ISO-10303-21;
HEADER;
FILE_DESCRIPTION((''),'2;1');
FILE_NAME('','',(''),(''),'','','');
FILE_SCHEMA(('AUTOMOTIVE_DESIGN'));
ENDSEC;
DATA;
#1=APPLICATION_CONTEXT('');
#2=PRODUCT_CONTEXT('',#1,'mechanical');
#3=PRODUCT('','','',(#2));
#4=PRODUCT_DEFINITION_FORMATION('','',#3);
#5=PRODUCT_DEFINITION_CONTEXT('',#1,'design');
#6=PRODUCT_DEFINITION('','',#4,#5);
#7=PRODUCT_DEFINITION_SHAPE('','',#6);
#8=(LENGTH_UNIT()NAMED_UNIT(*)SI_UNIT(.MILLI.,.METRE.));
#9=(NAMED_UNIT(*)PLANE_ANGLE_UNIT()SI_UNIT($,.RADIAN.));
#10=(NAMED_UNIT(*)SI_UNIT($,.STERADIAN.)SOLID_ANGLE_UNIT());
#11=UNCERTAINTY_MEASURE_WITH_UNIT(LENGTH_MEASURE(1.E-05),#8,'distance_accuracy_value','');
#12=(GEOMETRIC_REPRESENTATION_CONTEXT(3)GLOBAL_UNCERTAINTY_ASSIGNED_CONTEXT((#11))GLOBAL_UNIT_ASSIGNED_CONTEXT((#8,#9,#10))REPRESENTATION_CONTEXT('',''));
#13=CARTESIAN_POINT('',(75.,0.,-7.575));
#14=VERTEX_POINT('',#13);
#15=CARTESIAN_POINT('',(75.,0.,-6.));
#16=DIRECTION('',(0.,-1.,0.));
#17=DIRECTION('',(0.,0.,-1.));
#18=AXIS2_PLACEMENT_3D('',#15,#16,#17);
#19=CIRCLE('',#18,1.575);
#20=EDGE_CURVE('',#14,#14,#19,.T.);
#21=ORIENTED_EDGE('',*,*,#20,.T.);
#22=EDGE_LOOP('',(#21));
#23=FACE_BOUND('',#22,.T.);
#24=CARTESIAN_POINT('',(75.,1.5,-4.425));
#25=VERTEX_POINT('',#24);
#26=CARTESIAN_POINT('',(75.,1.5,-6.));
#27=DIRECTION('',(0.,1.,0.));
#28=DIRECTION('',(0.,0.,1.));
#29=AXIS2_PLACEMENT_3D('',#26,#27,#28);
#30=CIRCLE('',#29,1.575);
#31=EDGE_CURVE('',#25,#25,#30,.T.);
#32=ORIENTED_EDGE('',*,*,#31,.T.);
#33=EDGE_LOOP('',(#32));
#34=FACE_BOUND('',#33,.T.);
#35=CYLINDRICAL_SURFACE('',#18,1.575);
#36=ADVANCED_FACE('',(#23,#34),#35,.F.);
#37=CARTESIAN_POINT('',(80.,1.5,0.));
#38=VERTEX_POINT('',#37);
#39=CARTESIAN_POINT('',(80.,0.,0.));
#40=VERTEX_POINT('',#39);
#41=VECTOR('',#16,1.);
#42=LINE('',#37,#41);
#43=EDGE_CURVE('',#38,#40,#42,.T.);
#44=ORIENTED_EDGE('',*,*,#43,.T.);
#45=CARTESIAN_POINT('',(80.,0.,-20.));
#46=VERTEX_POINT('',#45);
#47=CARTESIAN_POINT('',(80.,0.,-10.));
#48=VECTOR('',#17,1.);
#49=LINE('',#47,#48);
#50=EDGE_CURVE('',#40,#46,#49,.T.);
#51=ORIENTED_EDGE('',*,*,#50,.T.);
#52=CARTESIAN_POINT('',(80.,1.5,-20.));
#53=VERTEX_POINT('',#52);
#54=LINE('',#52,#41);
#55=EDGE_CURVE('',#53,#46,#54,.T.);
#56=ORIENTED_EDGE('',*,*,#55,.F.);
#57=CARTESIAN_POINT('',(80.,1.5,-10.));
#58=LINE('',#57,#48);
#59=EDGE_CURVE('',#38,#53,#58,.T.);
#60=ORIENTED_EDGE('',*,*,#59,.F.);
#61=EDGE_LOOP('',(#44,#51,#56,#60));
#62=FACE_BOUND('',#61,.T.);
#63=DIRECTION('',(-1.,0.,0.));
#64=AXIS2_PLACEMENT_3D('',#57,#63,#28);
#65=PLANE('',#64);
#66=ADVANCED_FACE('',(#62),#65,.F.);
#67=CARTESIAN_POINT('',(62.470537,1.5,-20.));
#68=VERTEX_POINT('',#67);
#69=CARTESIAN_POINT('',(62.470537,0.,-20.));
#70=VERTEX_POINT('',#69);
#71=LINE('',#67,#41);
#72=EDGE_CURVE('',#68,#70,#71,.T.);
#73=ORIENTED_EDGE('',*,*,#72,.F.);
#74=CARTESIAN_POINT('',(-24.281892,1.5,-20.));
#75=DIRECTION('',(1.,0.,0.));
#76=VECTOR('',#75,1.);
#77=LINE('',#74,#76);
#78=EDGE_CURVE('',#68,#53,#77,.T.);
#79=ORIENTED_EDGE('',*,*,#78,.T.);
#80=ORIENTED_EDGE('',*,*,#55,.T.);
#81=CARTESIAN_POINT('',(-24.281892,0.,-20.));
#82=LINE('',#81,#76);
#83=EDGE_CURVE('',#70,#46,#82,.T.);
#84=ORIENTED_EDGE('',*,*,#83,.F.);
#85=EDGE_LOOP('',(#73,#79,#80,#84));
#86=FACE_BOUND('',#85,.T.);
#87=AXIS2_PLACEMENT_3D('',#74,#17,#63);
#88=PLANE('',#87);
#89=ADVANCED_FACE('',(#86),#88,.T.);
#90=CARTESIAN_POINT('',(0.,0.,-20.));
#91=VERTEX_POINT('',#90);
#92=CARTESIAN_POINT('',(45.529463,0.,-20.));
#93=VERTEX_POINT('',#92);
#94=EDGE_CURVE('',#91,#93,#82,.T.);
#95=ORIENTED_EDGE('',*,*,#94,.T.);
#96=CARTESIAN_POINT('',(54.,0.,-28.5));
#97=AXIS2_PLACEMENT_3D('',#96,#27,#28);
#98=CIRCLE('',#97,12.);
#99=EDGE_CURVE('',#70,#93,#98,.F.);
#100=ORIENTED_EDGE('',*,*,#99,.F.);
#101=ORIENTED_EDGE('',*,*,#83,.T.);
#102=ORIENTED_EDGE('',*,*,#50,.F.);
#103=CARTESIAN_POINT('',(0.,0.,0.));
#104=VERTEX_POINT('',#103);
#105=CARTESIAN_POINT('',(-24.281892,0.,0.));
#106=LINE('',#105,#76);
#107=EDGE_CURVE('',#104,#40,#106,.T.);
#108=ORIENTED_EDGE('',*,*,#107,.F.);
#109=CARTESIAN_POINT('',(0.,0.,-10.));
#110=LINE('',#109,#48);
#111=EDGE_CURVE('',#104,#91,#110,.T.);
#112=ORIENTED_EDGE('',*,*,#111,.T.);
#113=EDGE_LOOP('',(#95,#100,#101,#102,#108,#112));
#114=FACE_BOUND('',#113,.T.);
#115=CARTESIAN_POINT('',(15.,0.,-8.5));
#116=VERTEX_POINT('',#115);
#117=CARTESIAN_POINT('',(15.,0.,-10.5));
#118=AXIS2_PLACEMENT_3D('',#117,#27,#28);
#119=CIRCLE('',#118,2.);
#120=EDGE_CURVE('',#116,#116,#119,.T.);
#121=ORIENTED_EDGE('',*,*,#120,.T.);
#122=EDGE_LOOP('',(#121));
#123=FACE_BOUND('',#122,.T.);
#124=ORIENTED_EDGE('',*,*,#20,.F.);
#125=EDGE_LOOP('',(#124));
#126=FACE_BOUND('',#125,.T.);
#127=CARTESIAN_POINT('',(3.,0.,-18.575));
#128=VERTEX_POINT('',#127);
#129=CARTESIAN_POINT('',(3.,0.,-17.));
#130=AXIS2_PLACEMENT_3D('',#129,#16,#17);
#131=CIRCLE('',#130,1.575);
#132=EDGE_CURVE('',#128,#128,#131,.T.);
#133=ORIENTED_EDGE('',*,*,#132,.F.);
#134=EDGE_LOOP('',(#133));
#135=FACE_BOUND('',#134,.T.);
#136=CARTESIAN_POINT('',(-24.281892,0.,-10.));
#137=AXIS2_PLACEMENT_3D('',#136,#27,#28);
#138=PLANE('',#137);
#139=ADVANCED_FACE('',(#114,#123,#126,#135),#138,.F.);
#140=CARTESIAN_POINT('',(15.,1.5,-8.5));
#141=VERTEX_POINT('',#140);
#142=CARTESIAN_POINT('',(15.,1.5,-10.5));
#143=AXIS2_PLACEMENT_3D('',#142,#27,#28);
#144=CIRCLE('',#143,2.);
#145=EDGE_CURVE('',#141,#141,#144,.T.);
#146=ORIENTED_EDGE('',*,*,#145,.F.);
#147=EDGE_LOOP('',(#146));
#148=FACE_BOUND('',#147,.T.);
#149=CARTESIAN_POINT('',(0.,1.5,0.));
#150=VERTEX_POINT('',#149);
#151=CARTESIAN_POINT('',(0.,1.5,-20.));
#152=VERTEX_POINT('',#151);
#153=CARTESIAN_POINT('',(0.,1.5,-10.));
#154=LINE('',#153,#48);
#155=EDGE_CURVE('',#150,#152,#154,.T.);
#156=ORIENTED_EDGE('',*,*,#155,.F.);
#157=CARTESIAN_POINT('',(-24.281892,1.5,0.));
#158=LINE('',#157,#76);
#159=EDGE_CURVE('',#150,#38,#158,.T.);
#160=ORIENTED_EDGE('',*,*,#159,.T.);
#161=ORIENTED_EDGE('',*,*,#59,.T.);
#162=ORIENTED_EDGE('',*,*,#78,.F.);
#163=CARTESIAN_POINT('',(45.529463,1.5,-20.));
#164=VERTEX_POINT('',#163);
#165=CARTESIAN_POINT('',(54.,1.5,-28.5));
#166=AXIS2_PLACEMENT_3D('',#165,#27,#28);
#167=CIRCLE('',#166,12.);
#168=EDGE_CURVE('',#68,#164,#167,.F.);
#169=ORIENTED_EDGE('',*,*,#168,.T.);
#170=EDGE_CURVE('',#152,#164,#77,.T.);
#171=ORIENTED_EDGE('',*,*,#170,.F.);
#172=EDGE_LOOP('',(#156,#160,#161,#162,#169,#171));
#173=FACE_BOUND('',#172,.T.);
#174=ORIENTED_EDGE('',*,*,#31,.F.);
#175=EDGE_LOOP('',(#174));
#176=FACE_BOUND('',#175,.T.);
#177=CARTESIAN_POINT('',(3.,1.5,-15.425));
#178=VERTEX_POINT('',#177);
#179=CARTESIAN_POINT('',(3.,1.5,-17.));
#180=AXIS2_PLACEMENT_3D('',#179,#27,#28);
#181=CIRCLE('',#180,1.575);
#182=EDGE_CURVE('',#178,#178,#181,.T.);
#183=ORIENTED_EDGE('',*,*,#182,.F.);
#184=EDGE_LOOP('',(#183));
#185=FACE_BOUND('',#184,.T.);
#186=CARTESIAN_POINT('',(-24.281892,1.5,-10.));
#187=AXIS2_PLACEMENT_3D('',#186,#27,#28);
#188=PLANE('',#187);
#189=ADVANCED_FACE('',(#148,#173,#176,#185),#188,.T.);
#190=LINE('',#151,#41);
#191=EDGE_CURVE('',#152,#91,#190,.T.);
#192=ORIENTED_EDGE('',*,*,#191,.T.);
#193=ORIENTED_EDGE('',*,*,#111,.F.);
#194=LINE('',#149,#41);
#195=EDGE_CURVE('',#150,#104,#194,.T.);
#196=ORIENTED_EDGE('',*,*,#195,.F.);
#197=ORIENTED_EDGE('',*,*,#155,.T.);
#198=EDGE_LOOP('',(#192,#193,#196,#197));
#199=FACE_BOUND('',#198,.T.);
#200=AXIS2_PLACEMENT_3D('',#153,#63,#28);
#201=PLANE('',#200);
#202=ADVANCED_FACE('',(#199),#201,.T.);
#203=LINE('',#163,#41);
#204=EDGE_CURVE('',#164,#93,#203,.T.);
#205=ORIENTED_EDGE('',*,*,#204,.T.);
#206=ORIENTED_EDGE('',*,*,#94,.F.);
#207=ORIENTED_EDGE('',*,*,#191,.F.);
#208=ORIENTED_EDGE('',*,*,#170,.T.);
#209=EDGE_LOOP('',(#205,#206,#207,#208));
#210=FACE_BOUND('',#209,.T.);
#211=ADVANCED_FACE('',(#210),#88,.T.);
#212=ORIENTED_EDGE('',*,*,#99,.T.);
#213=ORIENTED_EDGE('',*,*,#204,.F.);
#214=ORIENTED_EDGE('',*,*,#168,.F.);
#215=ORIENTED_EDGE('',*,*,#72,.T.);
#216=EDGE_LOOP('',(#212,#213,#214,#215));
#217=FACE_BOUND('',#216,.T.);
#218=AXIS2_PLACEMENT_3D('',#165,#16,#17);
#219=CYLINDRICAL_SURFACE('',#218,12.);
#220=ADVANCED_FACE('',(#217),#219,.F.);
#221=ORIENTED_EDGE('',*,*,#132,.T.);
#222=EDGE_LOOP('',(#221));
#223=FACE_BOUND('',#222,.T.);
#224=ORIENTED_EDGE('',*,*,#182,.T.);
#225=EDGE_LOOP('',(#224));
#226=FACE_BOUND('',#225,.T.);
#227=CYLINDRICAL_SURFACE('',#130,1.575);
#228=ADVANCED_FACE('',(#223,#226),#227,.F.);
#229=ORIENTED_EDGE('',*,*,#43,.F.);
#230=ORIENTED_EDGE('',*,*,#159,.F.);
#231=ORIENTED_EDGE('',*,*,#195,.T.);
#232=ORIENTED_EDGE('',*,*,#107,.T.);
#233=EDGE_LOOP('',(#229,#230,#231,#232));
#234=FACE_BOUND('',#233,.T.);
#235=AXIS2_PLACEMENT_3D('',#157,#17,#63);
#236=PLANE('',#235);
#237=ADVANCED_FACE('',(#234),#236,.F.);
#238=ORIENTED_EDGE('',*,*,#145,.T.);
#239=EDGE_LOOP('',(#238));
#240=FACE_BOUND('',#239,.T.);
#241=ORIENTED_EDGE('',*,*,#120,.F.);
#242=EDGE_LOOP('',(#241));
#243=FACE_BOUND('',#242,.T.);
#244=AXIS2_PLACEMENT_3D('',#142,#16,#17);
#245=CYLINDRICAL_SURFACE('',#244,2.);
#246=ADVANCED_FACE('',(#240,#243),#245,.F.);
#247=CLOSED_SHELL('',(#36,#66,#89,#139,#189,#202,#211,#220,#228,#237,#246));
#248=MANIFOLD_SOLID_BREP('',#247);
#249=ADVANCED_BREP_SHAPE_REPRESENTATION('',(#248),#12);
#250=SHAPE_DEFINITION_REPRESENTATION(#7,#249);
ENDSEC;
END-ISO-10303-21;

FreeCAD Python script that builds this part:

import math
import FreeCAD as App
import Part
import Sketcher

doc = App.newDocument("Part")
body = doc.addObject("PartDesign::Body", "Body")

# Sketch on XZ plane
sketch1 = body.newObject("Sketcher::SketchObject", "Sketch")
sketch1.AttachmentSupport = (doc.getObject("XZ_Plane"), [""])
sketch1.MapMode = "FlatFace"
sketch1.addGeometry([
    Part.LineSegment(App.Vector(0, 0, 0), App.Vector(80, 0, 0)),  # 0
    Part.LineSegment(App.Vector(80, 0, 0), App.Vector(80, -20, 0)),  # 1
    Part.LineSegment(App.Vector(80, -20, 0), App.Vector(62.5, -20, 0)),  # 2
    Part.ArcOfCircle(Part.Circle(App.Vector(54, -28.5, 0), App.Vector(0, 0, 1), 12), math.radians(45), math.radians(135)),  # 3
    Part.LineSegment(App.Vector(45.5, -20, 0), App.Vector(0, -20, 0)),  # 4
    Part.LineSegment(App.Vector(0, -20, 0), App.Vector(0, 0, 0)),  # 5
    Part.Circle(App.Vector(15, -10.5, 0), App.Vector(0, 0, 1), 2),  # 6
], False)
sketch1.addConstraint([
    Sketcher.Constraint("Coincident", 0, 2, 1, 1),
    Sketcher.Constraint("Coincident", 1, 2, 2, 1),
    Sketcher.Constraint("Coincident", 2, 2, 3, 1),
    Sketcher.Constraint("Coincident", 3, 2, 4, 1),
    Sketcher.Constraint("Coincident", 4, 2, 5, 1),
    Sketcher.Constraint("Coincident", 5, 2, 0, 1),
    Sketcher.Constraint("Horizontal", 0),
    Sketcher.Constraint("Vertical", 1),
    Sketcher.Constraint("Horizontal", 2),
    Sketcher.Constraint("Horizontal", 4),
    Sketcher.Constraint("Vertical", 5),
    Sketcher.Constraint("Coincident", 5, 2, -1, 1),
    Sketcher.Constraint("Horizontal", 2, 2, 3, 2),
    Sketcher.Constraint("Diameter", 6, 4.0),
    Sketcher.Constraint("Radius", 3, 12.0),
    Sketcher.Constraint("DistanceX", 0, 1, 0, 2, 80.0),
    Sketcher.Constraint("DistanceY", 1, 2, 1, 1, 20.0),
    Sketcher.Constraint("DistanceX", -1, 1, 3, 3, 54.0),
    Sketcher.Constraint("DistanceX", -1, 1, 6, 3, 15.0),
    Sketcher.Constraint("DistanceY", 3, 3, 6, 3, 18.0),
    Sketcher.Constraint("DistanceY", 3, 3, -1, 1, 28.5),
])
pad1 = body.newObject("PartDesign::Pad", "Pad")
pad1.Profile = sketch1
pad1.Length = 1.5
pad1.Reversed = True

# Sketch on XZ plane
sketch2 = body.newObject("Sketcher::SketchObject", "Sketch001")
sketch2.AttachmentSupport = (doc.getObject("XZ_Plane"), [""])
sketch2.MapMode = "FlatFace"
sketch2.addGeometry([
    Part.Circle(App.Vector(75, -6, 0), App.Vector(0, 0, 1), 1.6),
    Part.Circle(App.Vector(3, -17, 0), App.Vector(0, 0, 1), 1.6),
], False)
sketch2.addConstraint([
    Sketcher.Constraint("Equal", 0, 1),
    Sketcher.Constraint("Diameter", 0, 3.15),
    Sketcher.Constraint("DistanceX", -1, 1, 0, 3, 75.0),
    Sketcher.Constraint("DistanceY", 0, 3, -1, 1, 6.0),
    Sketcher.Constraint("DistanceX", -1, 1, 1, 3, 3.0),
    Sketcher.Constraint("DistanceY", 1, 3, -1, 1, 17.0),
])
doc.recompute()
hole = body.newObject("PartDesign::Hole", "Hole")
hole.Profile = sketch2
hole.ThreadType = "None"
hole.Diameter = 3.15
hole.DepthType = "Dimension"
hole.Depth = 12
hole.DrillPoint = "Angled"
hole.DrillPointAngle = 118

doc.recompute()
